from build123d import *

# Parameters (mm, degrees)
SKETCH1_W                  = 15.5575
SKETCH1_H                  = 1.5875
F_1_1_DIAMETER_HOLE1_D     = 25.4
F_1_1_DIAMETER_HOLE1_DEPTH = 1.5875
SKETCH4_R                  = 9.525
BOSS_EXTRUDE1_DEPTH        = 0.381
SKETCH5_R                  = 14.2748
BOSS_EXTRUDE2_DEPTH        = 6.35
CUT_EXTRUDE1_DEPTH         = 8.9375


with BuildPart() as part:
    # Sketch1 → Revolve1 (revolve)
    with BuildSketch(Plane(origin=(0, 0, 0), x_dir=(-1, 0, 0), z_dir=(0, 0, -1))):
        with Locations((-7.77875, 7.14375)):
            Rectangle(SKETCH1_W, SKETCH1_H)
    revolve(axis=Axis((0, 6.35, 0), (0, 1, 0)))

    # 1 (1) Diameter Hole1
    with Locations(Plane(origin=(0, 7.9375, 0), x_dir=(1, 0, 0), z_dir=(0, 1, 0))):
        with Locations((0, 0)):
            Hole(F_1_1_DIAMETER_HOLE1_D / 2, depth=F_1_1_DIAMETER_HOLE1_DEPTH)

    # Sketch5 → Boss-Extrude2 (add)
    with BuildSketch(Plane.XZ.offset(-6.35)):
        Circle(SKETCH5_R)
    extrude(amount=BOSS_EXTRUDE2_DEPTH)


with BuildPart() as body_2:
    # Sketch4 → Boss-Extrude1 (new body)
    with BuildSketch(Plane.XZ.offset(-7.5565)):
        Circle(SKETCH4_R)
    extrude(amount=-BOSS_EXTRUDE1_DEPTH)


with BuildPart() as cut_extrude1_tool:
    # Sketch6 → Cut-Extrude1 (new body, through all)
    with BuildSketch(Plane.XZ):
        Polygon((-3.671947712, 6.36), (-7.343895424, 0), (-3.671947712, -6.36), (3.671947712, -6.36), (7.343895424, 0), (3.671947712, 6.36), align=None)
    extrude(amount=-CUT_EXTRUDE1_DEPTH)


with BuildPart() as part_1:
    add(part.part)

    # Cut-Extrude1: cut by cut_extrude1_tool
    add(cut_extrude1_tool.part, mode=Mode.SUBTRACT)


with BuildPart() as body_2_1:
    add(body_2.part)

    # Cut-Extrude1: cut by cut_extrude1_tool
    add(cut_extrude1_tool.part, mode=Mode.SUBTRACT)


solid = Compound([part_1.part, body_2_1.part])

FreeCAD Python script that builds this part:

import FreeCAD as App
import Part
import Sketcher
from FreeCAD import Vector
Q = App.Units.Quantity


def add_polygon(sketch, points):
    """Adds a closed chain of lines whose ends are joined by coincident constraints."""
    first, n = sketch.GeometryCount, len(points)
    for a, b in zip(points, points[1:] + points[:1]):
        sketch.addGeometry(Part.LineSegment(App.Vector(*a, 0), App.Vector(*b, 0)), False)
    for i in range(n):
        sketch.addConstraint(Sketcher.Constraint("Coincident", first + i, 2, first + (i + 1) % n, 1))

doc = App.newDocument("Part")
body = doc.addObject("PartDesign::Body", "Body")

sketch1 = body.newObject("Sketcher::SketchObject", "Sketch")
sketch1.AttachmentSupport = (doc.getObject("XY_Plane"), [""])
sketch1.MapMode = "FlatFace"
add_polygon(sketch1, [(15.6, 7.9), (15.6, 6.3), (0, 6.3), (0, 7.9)])
sketch1.addConstraint([
    Sketcher.Constraint("Vertical", 0),
    Sketcher.Constraint("Horizontal", 1),
    Sketcher.Constraint("Vertical", 2),
    Sketcher.Constraint("Horizontal", 3),
    Sketcher.Constraint("PointOnObject", 1, 2, -2),
    Sketcher.Constraint("DistanceY", 0, 2, 0, 1, Q("0.0625 in")),
    Sketcher.Constraint("DistanceY", -1, 1, 0, 2, Q("0.25 in")),
    Sketcher.Constraint("DistanceX", 1, 2, 1, 1, Q("0.6125 in")),
])
revolution = body.newObject("PartDesign::Revolution", "Revolution")
revolution.Profile = sketch1
revolution.ReferenceAxis = (sketch1, ["V_Axis"])
revolution.Angle = 360

sketch2 = body.newObject("Sketcher::SketchObject", "Sketch001")
sketch2.AttachmentSupport = (doc.getObject("XZ_Plane"), [""])
sketch2.MapMode = "FlatFace"
sketch2.AttachmentOffset = App.Placement(Vector(0, 0, -0.3125 * 25.4), App.Rotation())
sketch2.addGeometry(Part.Circle(Vector(0, 0, 0), Vector(0, 0, 1), 13), False)
sketch2.addConstraint([
    Sketcher.Constraint("Coincident", 0, 3, -1, 1),
    Sketcher.Constraint("Diameter", 0, Q("1 in")),
])
doc.recompute()
hole = body.newObject("PartDesign::Hole", "Hole")
hole.Profile = sketch2
hole.ThreadType = "None"
hole.Diameter = Q("1 in")
hole.DepthType = "Dimension"
hole.Depth = Q("0.0625 in")
hole.DrillPoint = "Flat"
hole.Reversed = True

sketch3 = body.newObject("Sketcher::SketchObject", "Sketch002")
sketch3.AttachmentSupport = (doc.getObject("XZ_Plane"), [""])
sketch3.MapMode = "FlatFace"
sketch3.AttachmentOffset = App.Placement(Vector(0, 0, -0.25 * 25.4), App.Rotation())
sketch3.addGeometry(Part.Circle(Vector(0, 0, 0), Vector(0, 0, 1), 14), False)
sketch3.addConstraint([
    Sketcher.Constraint("Coincident", 0, 3, -1, 1),
    Sketcher.Constraint("Diameter", 0, Q("1.124 in")),
])
pad1 = body.newObject("PartDesign::Pad", "Pad")
pad1.Profile = sketch3
pad1.Length = Q("0.25 in")
body2 = doc.addObject("PartDesign::Body", "Body001")

sketch4 = body2.newObject("Sketcher::SketchObject", "Sketch003")
sketch4.AttachmentSupport = (doc.getObject("XZ_Plane001"), [""])
sketch4.MapMode = "FlatFace"
sketch4.AttachmentOffset = App.Placement(Vector(0, 0, -0.2975 * 25.4), App.Rotation())
sketch4.addGeometry(Part.Circle(Vector(0, 0, 0), Vector(0, 0, 1), 10), False)
sketch4.addConstraint([
    Sketcher.Constraint("Coincident", 0, 3, -1, 1),
    Sketcher.Constraint("Diameter", 0, Q("0.75 in")),
])
pad2 = body2.newObject("PartDesign::Pad", "Pad001")
pad2.Profile = sketch4
pad2.Length = Q("0.015 in")
pad2.Reversed = True
body3 = doc.addObject("PartDesign::Body", "Body002")

sketch5 = body3.newObject("Sketcher::SketchObject", "Sketch004")
sketch5.AttachmentSupport = (doc.getObject("XZ_Plane002"), [""])
sketch5.MapMode = "FlatFace"
add_polygon(sketch5, [(-4, 6), (-7, 0), (-4, -6), (4, -6), (7, 0), (4, 6)])
sketch5.addConstraint([
    Sketcher.Constraint("Horizontal", 2),
    Sketcher.Constraint("Horizontal", 5),
    Sketcher.Constraint("Symmetric", 0, 2, 3, 2, -1, 1),
    Sketcher.Constraint("Symmetric", 1, 2, 4, 2, -1, 1),
    Sketcher.Constraint("PointOnObject", 0, 2, -1),
    Sketcher.Constraint("Parallel", 0, 3),
    Sketcher.Constraint("Vertical", 2, 2, 4, 2),
    Sketcher.Constraint("Angle", 0, Q("-120 deg")),
    Sketcher.Constraint("DistanceY", 1, 2, -1, 1, 6.36),
    Sketcher.Constraint("DistanceX", 2, 1, 2, 2, 7.343895),
])
pad3 = body3.newObject("PartDesign::Pad", "Pad002")
pad3.Profile = sketch5
pad3.Length = 8.9375
pad3.Reversed = True
doc.recompute()

body4 = doc.addObject("PartDesign::Body", "Body003")
body4.BaseFeature = body3
boolean = body.newObject("PartDesign::Boolean", "Boolean")
boolean.Type = "Cut"
boolean.addObjects([body4])
doc.recompute()

boolean2 = body2.newObject("PartDesign::Boolean", "Boolean001")
boolean2.Type = "Cut"
boolean2.addObjects([body3])

doc.recompute()
